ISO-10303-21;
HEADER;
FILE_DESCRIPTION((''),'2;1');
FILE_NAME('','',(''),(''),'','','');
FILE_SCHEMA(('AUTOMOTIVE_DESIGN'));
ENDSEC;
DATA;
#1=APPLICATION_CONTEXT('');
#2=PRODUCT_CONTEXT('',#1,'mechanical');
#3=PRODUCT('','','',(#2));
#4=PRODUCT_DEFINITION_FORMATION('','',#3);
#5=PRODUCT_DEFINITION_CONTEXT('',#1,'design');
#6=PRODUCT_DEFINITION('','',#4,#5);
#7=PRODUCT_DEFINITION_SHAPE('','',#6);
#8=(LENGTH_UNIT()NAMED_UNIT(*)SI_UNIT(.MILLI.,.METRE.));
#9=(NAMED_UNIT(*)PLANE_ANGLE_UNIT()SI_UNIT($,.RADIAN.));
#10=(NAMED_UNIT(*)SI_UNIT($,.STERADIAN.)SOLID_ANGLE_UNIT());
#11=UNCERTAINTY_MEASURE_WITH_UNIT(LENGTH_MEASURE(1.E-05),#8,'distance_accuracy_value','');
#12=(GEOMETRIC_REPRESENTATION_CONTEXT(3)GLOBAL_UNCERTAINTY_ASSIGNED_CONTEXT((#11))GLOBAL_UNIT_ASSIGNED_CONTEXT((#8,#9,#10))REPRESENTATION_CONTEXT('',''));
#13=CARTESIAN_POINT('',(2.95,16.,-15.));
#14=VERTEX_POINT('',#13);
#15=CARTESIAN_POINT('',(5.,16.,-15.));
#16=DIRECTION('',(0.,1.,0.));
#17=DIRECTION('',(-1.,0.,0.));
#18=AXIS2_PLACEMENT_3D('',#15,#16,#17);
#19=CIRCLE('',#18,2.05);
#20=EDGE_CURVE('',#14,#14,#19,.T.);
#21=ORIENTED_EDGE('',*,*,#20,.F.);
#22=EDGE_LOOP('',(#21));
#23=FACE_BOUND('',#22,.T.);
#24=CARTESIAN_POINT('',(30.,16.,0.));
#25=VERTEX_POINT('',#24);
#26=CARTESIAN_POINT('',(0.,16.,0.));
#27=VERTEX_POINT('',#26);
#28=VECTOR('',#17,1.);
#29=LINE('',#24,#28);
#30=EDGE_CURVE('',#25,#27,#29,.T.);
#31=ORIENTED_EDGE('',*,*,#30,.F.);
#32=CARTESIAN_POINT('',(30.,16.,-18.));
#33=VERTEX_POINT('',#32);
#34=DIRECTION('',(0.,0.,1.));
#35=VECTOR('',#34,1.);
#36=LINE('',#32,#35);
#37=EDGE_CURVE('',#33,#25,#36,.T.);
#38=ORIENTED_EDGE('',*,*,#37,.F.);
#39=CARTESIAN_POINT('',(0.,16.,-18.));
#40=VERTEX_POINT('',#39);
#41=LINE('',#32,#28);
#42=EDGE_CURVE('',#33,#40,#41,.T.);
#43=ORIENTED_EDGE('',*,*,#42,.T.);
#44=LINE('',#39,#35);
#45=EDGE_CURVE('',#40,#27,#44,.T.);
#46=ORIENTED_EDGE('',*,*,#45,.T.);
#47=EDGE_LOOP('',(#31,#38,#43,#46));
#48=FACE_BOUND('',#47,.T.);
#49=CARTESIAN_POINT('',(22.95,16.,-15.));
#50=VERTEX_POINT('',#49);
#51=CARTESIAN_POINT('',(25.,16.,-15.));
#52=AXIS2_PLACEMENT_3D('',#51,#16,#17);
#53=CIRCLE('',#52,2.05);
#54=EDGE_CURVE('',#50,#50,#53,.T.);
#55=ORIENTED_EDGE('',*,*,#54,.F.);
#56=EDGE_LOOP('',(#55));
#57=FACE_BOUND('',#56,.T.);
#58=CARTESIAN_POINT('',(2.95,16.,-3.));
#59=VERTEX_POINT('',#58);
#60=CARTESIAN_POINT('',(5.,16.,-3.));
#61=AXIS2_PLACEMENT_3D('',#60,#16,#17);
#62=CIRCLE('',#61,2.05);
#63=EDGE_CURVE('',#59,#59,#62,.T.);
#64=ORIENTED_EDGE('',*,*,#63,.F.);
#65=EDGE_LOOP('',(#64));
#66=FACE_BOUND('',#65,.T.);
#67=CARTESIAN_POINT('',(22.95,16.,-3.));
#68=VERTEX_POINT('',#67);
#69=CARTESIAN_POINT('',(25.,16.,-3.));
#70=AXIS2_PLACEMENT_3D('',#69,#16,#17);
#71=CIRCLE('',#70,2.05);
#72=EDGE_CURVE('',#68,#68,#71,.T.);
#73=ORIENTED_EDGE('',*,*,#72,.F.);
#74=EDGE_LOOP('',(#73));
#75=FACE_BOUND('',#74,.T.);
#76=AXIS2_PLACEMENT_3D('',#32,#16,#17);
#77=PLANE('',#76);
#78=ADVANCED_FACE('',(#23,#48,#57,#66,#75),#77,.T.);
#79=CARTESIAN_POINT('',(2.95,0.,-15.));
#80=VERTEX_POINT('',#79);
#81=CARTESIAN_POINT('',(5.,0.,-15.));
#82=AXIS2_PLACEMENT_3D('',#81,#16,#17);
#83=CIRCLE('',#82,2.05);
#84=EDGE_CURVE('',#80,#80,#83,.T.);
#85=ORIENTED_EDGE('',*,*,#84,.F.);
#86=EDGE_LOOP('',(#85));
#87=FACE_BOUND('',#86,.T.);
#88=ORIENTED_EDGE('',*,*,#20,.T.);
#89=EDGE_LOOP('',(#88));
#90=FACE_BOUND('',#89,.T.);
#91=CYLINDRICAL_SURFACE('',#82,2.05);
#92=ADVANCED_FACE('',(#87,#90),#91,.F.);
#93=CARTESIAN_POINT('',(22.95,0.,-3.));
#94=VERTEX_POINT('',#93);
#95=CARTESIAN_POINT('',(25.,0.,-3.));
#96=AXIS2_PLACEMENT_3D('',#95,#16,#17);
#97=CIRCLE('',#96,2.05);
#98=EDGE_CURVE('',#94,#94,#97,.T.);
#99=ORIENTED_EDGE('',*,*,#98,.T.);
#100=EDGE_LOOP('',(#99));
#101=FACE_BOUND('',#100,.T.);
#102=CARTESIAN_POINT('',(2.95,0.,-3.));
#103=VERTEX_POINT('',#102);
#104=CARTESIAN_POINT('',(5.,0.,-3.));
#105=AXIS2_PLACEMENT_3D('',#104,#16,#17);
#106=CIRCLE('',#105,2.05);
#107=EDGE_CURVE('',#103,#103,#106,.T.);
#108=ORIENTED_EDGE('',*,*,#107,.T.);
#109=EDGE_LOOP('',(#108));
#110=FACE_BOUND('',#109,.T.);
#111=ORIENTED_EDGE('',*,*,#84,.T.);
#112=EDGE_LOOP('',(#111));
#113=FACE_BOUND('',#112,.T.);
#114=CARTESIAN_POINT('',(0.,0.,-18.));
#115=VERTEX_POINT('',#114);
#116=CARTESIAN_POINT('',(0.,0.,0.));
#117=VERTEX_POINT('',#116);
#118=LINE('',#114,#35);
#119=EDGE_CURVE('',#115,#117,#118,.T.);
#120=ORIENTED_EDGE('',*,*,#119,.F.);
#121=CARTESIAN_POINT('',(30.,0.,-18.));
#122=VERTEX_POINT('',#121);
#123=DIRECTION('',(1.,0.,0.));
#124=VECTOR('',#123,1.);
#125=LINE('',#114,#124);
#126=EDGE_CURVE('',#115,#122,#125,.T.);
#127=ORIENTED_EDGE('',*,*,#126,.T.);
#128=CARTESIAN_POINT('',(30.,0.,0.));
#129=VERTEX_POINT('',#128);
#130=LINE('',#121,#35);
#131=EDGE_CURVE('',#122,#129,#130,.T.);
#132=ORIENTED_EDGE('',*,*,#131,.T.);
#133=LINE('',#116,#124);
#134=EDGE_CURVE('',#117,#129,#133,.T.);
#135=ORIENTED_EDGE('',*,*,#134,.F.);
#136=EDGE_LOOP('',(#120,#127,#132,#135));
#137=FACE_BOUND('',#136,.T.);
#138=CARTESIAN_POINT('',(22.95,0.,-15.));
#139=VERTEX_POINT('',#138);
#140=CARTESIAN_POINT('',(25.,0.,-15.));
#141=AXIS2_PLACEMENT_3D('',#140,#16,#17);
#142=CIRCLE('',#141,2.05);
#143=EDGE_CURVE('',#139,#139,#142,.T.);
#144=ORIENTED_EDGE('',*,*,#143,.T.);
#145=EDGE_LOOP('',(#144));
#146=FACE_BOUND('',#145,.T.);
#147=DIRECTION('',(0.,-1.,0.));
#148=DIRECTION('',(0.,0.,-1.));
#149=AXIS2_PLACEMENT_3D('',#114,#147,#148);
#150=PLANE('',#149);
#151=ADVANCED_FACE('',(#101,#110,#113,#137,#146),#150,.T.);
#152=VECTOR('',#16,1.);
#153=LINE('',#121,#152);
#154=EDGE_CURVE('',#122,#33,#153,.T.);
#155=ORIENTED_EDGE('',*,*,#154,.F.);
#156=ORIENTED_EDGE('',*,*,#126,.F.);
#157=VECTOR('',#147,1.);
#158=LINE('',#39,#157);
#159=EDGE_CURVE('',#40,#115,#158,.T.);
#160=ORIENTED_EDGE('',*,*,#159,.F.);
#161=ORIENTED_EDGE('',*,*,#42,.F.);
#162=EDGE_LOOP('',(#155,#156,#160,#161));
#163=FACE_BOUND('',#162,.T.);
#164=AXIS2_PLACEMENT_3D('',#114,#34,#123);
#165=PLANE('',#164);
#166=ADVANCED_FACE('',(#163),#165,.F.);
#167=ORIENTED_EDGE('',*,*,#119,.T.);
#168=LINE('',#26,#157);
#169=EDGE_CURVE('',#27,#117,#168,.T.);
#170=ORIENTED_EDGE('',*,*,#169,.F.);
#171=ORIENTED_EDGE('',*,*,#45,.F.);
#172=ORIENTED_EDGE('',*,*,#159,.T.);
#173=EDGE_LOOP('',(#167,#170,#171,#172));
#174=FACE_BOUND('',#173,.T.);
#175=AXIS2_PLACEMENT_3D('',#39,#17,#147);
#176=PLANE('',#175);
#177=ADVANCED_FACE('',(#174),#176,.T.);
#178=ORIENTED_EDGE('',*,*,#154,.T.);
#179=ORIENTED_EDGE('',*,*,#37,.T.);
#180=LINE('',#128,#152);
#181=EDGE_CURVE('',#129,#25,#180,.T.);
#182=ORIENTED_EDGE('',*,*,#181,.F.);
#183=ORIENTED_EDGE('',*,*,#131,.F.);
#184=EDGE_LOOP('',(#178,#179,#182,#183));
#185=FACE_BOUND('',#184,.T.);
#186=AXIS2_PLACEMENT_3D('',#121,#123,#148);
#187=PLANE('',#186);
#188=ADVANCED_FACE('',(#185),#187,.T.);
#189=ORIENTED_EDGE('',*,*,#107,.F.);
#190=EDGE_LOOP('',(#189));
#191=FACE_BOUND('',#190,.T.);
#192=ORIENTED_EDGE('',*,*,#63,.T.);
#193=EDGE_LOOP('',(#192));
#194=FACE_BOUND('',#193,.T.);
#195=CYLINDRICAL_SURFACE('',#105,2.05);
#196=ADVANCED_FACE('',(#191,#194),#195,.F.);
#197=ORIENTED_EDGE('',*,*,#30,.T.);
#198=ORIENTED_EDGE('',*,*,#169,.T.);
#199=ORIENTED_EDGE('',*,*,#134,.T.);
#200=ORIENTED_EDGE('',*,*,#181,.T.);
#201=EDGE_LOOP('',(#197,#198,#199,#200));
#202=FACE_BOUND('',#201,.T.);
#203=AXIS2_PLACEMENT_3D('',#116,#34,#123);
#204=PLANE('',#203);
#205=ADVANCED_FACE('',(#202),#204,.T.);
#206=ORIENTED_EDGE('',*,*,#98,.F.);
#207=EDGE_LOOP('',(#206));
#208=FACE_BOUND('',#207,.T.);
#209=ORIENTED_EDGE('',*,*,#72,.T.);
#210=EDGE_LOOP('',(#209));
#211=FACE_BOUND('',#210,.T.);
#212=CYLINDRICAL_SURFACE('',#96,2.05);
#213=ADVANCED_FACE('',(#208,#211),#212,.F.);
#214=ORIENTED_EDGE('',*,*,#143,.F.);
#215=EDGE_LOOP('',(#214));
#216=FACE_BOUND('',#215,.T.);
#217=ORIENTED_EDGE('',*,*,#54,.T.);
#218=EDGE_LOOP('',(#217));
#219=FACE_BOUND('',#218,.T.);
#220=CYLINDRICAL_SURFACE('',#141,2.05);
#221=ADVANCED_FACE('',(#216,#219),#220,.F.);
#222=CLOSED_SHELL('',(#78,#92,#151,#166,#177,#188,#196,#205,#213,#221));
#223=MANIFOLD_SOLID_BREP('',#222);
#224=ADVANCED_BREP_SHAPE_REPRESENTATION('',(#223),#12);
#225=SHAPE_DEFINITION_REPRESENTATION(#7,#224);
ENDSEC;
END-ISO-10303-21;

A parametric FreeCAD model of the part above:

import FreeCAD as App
import Part
import Sketcher
Q = App.Units.Quantity

doc = App.newDocument("Part")
body = doc.addObject("PartDesign::Body", "Body")

# Sketch on XY plane
sketch1 = body.newObject("Sketcher::SketchObject", "Sketch")
sketch1.AttachmentSupport = (doc.getObject("XY_Plane"), [""])
sketch1.MapMode = "FlatFace"
sketch1.addGeometry([
    Part.LineSegment(App.Vector(0, 16, 0), App.Vector(0, 0, 0)),
    Part.LineSegment(App.Vector(0, 0, 0), App.Vector(30, 0, 0)),
    Part.LineSegment(App.Vector(30, 0, 0), App.Vector(30, 16, 0)),
    Part.LineSegment(App.Vector(30, 16, 0), App.Vector(0, 16, 0)),
], False)
sketch1.addConstraint([
    Sketcher.Constraint("Coincident", 0, 2, 1, 1),
    Sketcher.Constraint("Coincident", 1, 2, 2, 1),
    Sketcher.Constraint("Coincident", 2, 2, 3, 1),
    Sketcher.Constraint("Coincident", 3, 2, 0, 1),
    Sketcher.Constraint("Vertical", 0),
    Sketcher.Constraint("Horizontal", 1),
    Sketcher.Constraint("Vertical", 2),
    Sketcher.Constraint("Horizontal", 3),
    Sketcher.Constraint("Coincident", 0, 2, -1, 1),
    Sketcher.Constraint("DistanceX", 1, 1, 1, 2, Q("30 mm")),
    Sketcher.Constraint("DistanceY", 0, 2, 0, 1, Q("16 mm")),
])
pad1 = body.newObject("PartDesign::Pad", "Pad")
pad1.Profile = sketch1
pad1.Length = 18
pad1.Reversed = True

# Sketch on XZ plane
sketch2 = body.newObject("Sketcher::SketchObject", "Sketch001")
sketch2.AttachmentSupport = (doc.getObject("XZ_Plane"), [""])
sketch2.MapMode = "FlatFace"
sketch2.AttachmentOffset = App.Placement(App.Vector(0, 0, -16), App.Rotation())
sketch2.addGeometry([
    Part.Circle(App.Vector(25, -15, 0), App.Vector(0, 0, 1), 2),
    Part.Circle(App.Vector(25, -3, 0), App.Vector(0, 0, 1), 2),
    Part.Circle(App.Vector(5, -3, 0), App.Vector(0, 0, 1), 2),
    Part.Circle(App.Vector(5, -15, 0), App.Vector(0, 0, 1), 2),
], False)
sketch2.addConstraint([
    Sketcher.Constraint("Equal", 0, 1),
    Sketcher.Constraint("Equal", 1, 2),
    Sketcher.Constraint("Equal", 2, 3),
    Sketcher.Constraint("Horizontal", 1, 3, 2, 3),
    Sketcher.Constraint("Horizontal", 0, 3, 3, 3),
    Sketcher.Constraint("Vertical", 0, 3, 1, 3),
    Sketcher.Constraint("Vertical", 2, 3, 3, 3),
    Sketcher.Constraint("Diameter", 0, Q("4.1 mm")),
    Sketcher.Constraint("DistanceX", -1, 1, 0, 3, Q("25 mm")),
    Sketcher.Constraint("DistanceY", 0, 3, -1, 1, Q("15 mm")),
    Sketcher.Constraint("DistanceY", 1, 3, -1, 1, Q("3 mm")),
    Sketcher.Constraint("DistanceX", -1, 1, 2, 3, Q("5 mm")),
])
pocket1 = body.newObject("PartDesign::Pocket", "Pocket")
pocket1.Profile = sketch2
pocket1.Length = 16
pocket1.Reversed = True

doc.recompute()
